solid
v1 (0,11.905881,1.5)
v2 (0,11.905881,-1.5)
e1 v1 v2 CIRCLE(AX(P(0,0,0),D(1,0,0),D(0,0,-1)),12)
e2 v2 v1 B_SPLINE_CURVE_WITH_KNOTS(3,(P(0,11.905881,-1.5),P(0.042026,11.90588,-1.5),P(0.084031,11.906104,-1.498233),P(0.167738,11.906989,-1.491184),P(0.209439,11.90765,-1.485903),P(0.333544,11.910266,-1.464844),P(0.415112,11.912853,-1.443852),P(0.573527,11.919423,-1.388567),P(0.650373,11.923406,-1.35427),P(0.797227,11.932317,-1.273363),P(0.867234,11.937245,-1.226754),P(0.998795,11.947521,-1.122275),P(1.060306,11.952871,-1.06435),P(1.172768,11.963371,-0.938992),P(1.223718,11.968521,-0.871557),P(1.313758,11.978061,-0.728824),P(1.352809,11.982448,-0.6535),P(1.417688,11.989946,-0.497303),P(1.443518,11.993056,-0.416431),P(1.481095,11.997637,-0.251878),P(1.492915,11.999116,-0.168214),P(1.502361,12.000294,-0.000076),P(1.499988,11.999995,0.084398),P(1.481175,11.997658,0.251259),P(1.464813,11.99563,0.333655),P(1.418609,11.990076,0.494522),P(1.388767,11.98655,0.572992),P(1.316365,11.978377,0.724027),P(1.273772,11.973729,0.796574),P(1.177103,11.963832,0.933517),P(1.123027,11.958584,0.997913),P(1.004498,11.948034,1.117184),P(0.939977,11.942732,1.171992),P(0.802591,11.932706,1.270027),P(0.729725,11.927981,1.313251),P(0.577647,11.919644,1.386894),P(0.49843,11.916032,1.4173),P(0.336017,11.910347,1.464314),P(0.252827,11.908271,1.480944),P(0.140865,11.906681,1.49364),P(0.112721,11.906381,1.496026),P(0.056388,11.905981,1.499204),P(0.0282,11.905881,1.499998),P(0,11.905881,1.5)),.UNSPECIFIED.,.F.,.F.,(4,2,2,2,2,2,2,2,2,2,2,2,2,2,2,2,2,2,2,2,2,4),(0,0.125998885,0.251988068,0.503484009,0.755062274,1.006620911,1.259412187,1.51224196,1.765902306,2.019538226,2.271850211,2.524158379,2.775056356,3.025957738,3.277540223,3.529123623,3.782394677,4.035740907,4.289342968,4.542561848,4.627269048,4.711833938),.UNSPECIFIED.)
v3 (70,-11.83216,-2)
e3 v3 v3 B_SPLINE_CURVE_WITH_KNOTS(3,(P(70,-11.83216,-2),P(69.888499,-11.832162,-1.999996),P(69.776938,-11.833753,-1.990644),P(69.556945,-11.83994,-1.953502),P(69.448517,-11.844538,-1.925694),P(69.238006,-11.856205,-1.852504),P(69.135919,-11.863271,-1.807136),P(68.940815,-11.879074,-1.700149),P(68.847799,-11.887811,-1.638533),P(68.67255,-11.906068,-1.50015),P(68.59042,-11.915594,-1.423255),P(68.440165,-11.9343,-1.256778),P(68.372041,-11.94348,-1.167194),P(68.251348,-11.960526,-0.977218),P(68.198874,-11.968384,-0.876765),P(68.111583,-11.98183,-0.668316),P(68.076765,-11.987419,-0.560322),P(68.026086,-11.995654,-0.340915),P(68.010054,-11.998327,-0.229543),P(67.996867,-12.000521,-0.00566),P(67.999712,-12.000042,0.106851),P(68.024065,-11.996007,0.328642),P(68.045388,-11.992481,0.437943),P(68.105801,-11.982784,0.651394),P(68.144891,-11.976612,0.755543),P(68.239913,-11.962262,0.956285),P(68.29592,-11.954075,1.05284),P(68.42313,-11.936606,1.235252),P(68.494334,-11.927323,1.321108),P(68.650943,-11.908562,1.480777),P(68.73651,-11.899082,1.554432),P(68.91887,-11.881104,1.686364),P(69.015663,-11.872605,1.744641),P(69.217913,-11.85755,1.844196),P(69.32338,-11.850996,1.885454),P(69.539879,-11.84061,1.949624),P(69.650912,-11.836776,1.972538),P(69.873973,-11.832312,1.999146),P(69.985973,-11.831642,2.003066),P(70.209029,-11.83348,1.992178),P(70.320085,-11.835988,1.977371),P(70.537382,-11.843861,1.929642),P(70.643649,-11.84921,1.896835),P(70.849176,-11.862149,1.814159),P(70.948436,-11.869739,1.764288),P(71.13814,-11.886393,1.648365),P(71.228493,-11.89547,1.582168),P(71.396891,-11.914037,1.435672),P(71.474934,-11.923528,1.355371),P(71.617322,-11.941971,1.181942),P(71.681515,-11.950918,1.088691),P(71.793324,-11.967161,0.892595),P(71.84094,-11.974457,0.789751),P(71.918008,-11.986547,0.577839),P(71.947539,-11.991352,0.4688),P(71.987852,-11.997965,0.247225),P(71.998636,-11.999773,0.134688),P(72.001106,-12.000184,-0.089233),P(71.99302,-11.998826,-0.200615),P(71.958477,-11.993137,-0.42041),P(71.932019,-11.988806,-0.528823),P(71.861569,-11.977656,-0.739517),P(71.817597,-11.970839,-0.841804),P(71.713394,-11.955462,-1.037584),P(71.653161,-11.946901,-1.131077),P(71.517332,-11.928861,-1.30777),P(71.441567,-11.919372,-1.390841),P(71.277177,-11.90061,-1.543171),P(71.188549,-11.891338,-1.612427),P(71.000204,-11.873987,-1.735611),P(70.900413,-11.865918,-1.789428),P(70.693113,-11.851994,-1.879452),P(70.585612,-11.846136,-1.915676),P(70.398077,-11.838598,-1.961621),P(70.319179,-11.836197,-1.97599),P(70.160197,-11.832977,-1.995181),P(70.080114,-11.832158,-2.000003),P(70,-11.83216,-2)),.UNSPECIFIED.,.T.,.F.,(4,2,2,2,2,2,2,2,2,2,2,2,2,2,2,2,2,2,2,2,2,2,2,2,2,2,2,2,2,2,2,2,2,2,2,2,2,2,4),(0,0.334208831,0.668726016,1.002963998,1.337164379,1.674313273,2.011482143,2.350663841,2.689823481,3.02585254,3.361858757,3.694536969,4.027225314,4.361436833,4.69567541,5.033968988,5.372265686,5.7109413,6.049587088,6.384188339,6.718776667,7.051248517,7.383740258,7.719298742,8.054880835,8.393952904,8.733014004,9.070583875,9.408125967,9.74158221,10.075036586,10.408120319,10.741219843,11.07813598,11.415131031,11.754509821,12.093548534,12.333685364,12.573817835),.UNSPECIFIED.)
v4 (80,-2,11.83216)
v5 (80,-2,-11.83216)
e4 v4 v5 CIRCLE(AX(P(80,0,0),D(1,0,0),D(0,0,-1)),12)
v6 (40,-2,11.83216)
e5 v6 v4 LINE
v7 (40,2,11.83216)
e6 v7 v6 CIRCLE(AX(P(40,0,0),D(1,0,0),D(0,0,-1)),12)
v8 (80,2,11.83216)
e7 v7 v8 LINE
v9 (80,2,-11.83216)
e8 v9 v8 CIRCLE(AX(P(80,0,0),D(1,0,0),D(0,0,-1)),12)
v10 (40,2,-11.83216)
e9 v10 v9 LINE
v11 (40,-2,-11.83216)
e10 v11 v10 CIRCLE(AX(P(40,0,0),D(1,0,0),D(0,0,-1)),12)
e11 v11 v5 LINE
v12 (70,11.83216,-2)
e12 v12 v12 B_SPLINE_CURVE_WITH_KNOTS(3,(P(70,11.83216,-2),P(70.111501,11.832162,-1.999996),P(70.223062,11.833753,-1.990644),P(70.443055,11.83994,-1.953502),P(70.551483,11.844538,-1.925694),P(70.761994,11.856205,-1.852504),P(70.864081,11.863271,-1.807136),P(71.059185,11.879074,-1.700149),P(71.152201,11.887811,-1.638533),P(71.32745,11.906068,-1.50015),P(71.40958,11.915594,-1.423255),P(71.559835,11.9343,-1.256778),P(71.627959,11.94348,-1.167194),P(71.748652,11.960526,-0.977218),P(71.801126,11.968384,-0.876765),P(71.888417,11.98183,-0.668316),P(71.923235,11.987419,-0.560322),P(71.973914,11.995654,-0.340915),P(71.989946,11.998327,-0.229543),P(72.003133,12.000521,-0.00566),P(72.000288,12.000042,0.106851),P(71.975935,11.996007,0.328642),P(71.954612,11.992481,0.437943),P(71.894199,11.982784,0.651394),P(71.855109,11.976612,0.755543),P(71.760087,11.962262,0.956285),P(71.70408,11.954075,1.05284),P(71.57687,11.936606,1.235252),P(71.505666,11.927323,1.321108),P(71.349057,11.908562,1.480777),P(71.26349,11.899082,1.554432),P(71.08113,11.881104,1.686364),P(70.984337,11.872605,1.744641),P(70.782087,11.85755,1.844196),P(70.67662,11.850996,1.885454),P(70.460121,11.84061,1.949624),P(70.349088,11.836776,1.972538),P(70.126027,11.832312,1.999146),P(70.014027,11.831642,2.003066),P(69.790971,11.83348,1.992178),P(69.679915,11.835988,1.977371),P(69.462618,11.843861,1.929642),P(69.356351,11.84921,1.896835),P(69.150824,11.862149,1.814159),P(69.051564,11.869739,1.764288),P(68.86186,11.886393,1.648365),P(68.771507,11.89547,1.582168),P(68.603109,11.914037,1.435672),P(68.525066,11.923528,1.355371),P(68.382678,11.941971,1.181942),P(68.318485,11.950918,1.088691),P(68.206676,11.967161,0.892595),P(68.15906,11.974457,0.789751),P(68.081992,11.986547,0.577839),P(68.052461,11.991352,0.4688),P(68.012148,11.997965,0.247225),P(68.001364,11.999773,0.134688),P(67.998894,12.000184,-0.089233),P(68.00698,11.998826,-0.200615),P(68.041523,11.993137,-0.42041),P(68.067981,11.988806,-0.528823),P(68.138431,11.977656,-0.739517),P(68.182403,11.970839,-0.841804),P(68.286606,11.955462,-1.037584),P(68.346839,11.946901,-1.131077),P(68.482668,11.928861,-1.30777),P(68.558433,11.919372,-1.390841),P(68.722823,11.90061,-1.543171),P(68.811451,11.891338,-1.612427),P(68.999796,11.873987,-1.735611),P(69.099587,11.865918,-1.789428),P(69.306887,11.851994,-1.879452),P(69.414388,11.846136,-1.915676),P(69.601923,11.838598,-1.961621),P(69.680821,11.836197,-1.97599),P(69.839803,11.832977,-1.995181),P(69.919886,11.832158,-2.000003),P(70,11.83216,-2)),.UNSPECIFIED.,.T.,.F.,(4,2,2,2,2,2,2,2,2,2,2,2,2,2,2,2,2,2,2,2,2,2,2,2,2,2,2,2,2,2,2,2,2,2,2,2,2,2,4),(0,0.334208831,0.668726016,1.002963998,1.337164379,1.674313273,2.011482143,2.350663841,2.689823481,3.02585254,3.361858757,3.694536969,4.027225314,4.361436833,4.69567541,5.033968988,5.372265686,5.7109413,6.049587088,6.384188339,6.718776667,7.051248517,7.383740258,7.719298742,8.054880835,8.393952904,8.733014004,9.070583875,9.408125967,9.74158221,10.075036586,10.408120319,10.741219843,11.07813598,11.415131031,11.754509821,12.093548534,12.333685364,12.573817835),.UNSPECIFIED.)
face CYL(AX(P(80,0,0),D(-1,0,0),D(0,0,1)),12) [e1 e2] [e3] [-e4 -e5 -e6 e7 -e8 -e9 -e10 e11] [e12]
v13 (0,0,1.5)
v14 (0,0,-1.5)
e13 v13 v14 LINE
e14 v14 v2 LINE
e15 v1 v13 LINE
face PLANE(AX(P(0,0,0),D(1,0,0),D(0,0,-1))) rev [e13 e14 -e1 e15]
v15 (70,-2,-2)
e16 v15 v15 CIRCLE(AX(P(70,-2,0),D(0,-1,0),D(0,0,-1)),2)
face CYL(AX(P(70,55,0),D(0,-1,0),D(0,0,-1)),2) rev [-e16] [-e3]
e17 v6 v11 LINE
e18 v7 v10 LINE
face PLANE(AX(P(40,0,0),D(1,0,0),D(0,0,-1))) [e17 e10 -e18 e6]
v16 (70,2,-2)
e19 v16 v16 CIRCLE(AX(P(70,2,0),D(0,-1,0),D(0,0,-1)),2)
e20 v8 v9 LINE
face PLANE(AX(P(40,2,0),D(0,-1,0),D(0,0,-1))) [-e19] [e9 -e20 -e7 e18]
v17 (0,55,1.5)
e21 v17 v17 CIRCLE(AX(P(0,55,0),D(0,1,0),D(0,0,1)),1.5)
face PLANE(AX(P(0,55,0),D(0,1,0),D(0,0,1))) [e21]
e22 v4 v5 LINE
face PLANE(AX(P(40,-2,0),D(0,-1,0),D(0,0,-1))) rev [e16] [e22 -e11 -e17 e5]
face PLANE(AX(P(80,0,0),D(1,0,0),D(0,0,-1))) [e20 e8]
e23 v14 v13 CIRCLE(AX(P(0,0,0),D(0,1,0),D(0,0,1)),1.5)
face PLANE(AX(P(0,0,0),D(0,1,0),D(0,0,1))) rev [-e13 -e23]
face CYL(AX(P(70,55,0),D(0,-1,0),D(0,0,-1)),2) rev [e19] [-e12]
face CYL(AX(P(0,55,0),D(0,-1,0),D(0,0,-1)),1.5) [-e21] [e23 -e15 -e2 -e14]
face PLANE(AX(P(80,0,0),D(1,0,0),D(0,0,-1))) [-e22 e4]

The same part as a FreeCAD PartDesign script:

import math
import FreeCAD as App
import Part
import Sketcher
from FreeCAD import Vector
Q = App.Units.Quantity

doc = App.newDocument("Part")
params = doc.addObject("Spreadsheet::Sheet", "Params")
for row, (alias, value) in enumerate([
    ("sketch1_diameter", "3 mm"),
    ("pad1_length", "55 mm"),
    ("sketch2_diameter", "24 mm"),
    ("pad2_length", "80 mm"),
    ("sketch3_radius", "12 mm"),
    ("pocket1_length", "40 mm"),
    ("sketch4_diameter", "4 mm"),
], start=1):
    params.set(f"A{row}", alias)
    params.set(f"B{row}", "=" + value)
    params.setAlias(f"B{row}", alias)

body = doc.addObject("PartDesign::Body", "Body")

sketch1 = doc.addObject("Sketcher::SketchObject", "Sketch")
body.addObject(sketch1)
sketch1.AttachmentSupport = (doc.XZ_Plane, [""])
sketch1.MapMode = "FlatFace"
sketch1.addGeometry(Part.Circle(Vector(0, 0, 0), Vector(0, 0, 1), 1.5), False)
sketch1.addConstraint([
    Sketcher.Constraint("Coincident", 0, 3, -1, 1),
    Sketcher.Constraint("Diameter", 0, Q("3 mm")),
])
sketch1.setExpression("Constraints[1]", "Params.sketch1_diameter")
pad1 = doc.addObject("PartDesign::Pad", "Pad")
body.addObject(pad1)
pad1.Profile = sketch1
pad1.setExpression("Length", "Params.pad1_length")
pad1.Reversed = True

sketch2 = doc.addObject("Sketcher::SketchObject", "Sketch001")
body.addObject(sketch2)
sketch2.AttachmentSupport = (doc.YZ_Plane, [""])
sketch2.MapMode = "FlatFace"
sketch2.addGeometry(Part.Circle(Vector(0, 0, 0), Vector(0, 0, 1), 12), False)
sketch2.addConstraint([
    Sketcher.Constraint("Coincident", 0, 3, -1, 1),
    Sketcher.Constraint("Diameter", 0, Q("24 mm")),
])
sketch2.setExpression("Constraints[1]", "Params.sketch2_diameter")
pad2 = doc.addObject("PartDesign::Pad", "Pad001")
body.addObject(pad2)
pad2.Profile = sketch2
pad2.setExpression("Length", "Params.pad2_length")

sketch3 = doc.addObject("Sketcher::SketchObject", "Sketch002")
body.addObject(sketch3)
sketch3.AttachmentSupport = (doc.YZ_Plane, [""])
sketch3.MapMode = "FlatFace"
sketch3.AttachmentOffset = App.Placement(Vector(0, 0, 40), App.Rotation())
sketch3.addGeometry([
    Part.LineSegment(Vector(-2, 11.8, 0), Vector(-2, -11.8, 0)),
    Part.ArcOfCircle(Part.Circle(Vector(0, 0, 0), Vector(0, 0, 1), 12), math.radians(-99.59), math.radians(-90)),
    Part.ArcOfCircle(Part.Circle(Vector(0, 0, 0), Vector(0, 0, 1), 12), math.radians(-90), math.radians(-80.41)),
    Part.LineSegment(Vector(2, -11.8, 0), Vector(2, 11.8, 0)),
    Part.ArcOfCircle(Part.Circle(Vector(0, 0, 0), Vector(0, 0, 1), 12), math.radians(80.41), math.radians(99.59)),
], False)
sketch3.addConstraint([
    Sketcher.Constraint("Coincident", 0, 2, 1, 1),
    Sketcher.Constraint("Tangent", 1, 2, 2, 1),
    Sketcher.Constraint("Coincident", 2, 2, 3, 1),
    Sketcher.Constraint("Coincident", 3, 2, 4, 1),
    Sketcher.Constraint("Coincident", 4, 2, 0, 1),
    Sketcher.Constraint("Vertical", 0),
    Sketcher.Constraint("Vertical", 3),
    Sketcher.Constraint("Coincident", 1, 3, -1, 1),
    Sketcher.Constraint("Coincident", 4, 3, -1, 1),
    Sketcher.Constraint("Equal", 1, 2),
    Sketcher.Constraint("Equal", 2, 4),
    Sketcher.Constraint("PointOnObject", 1, 2, -2),
    Sketcher.Constraint("Horizontal", 0, 2, 2, 2),
    Sketcher.Constraint("Radius", 1, Q("12 mm")),
    Sketcher.Constraint("DistanceX", 0, 2, -1, 1, Q("2 mm")),
])
sketch3.setExpression("Constraints[13]", "Params.sketch3_radius")
pocket1 = doc.addObject("PartDesign::Pocket", "Pocket")
body.addObject(pocket1)
pocket1.Profile = sketch3
pocket1.setExpression("Length", "Params.pocket1_length")
pocket1.Reversed = True

sketch4 = doc.addObject("Sketcher::SketchObject", "Sketch003")
body.addObject(sketch4)
sketch4.AttachmentSupport = (doc.XZ_Plane, [""])
sketch4.MapMode = "FlatFace"
sketch4.AttachmentOffset = App.Placement(Vector(0, 0, -2), App.Rotation())
sketch4.addGeometry(Part.Circle(Vector(70, 0, 0), Vector(0, 0, 1), 2), False)
sketch4.addConstraint([
    Sketcher.Constraint("PointOnObject", 0, 3, -1),
    Sketcher.Constraint("Diameter", 0, Q("4 mm")),
    Sketcher.Constraint("DistanceX", -1, 1, 0, 3, Q("70 mm")),
])
sketch4.setExpression("Constraints[1]", "Params.sketch4_diameter")
pocket2 = doc.addObject("PartDesign::Pocket", "Pocket001")
body.addObject(pocket2)
pocket2.Profile = sketch4
pocket2.Type = "ThroughAll"
pocket2.Midplane = True

doc.recompute()
